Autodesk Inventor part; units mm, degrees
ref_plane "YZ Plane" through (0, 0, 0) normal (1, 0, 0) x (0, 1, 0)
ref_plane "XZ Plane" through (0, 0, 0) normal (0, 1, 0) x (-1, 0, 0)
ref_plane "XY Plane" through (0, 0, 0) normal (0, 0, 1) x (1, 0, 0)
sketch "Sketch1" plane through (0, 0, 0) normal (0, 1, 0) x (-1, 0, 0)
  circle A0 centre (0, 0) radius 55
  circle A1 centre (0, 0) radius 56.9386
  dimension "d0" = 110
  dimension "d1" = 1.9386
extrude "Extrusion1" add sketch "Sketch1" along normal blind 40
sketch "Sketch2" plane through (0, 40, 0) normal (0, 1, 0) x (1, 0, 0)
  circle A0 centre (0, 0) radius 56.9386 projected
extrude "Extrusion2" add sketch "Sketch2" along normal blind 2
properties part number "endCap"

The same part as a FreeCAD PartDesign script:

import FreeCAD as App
import Part
import Sketcher

doc = App.newDocument("Part")
body = doc.addObject("PartDesign::Body", "Body")

sketch1 = body.newObject("Sketcher::SketchObject", "Sketch")
sketch1.AttachmentSupport = (doc.getObject("XZ_Plane"), [""])
sketch1.MapMode = "FlatFace"
sketch1.addGeometry([
    Part.Circle(App.Vector(0, 0, 0), App.Vector(0, 0, 1), 57),
    Part.Circle(App.Vector(0, 0, 0), App.Vector(0, 0, 1), 55),
], False)
sketch1.addConstraint([
    Sketcher.Constraint("Coincident", 0, 3, -1, 1),
    Sketcher.Constraint("Coincident", 1, 3, -1, 1),
    Sketcher.Constraint("Diameter", 1, 110.0),
    Sketcher.Constraint("Diameter", 0, 113.8772),
])
pad1 = body.newObject("PartDesign::Pad", "Pad")
pad1.Profile = sketch1
pad1.Length = 40
pad1.Reversed = True

sketch2 = body.newObject("Sketcher::SketchObject", "Sketch001")
sketch2.AttachmentSupport = (doc.getObject("XZ_Plane"), [""])
sketch2.MapMode = "FlatFace"
sketch2.AttachmentOffset = App.Placement(App.Vector(0, 0, -40), App.Rotation())
sketch2.addGeometry(Part.Circle(App.Vector(0, 0, 0), App.Vector(0, 0, 1), 57), False)
sketch2.addConstraint([
    Sketcher.Constraint("Coincident", 0, 3, -1, 1),
    Sketcher.Constraint("Diameter", 0, 113.8772),
])
pad2 = body.newObject("PartDesign::Pad", "Pad001")
pad2.Profile = sketch2
pad2.Length = 2
pad2.Reversed = True

doc.recompute()
